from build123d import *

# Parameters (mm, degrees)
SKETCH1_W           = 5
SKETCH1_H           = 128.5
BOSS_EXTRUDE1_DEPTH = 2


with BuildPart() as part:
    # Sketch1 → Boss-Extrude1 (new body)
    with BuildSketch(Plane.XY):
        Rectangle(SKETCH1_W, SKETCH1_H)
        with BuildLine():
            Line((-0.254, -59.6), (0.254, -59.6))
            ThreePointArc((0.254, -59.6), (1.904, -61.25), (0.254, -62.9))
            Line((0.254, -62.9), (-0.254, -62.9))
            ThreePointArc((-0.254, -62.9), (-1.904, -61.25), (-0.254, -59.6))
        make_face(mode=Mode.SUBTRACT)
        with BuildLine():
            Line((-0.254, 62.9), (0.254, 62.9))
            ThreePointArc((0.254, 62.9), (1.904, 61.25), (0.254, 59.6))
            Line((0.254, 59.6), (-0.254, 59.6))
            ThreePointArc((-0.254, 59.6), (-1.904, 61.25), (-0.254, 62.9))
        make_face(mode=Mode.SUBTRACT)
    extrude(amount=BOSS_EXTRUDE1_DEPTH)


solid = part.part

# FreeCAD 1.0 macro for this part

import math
import FreeCAD as App
import Part
import Sketcher


def add_polygon(sketch, points):
    """Adds a closed chain of lines whose ends are joined by coincident constraints."""
    first, n = sketch.GeometryCount, len(points)
    for a, b in zip(points, points[1:] + points[:1]):
        sketch.addGeometry(Part.LineSegment(App.Vector(*a, 0), App.Vector(*b, 0)), False)
    for i in range(n):
        sketch.addConstraint(Sketcher.Constraint("Coincident", first + i, 2, first + (i + 1) % n, 1))

doc = App.newDocument("Part")
body = doc.addObject("PartDesign::Body", "Body")

sketch1 = doc.addObject("Sketcher::SketchObject", "Sketch")
body.addObject(sketch1)
sketch1.AttachmentSupport = (doc.XY_Plane, [""])
sketch1.MapMode = "FlatFace"
add_polygon(sketch1, [(-2.5, 64.2), (-2.5, -64.2), (2.5, -64.2), (2.5, 64.2)])
sketch1.addGeometry(Part.ArcOfCircle(Part.Circle(App.Vector(-0.3, -61.2, 0), App.Vector(0, 0, 1), 1.6), math.radians(90), math.radians(270)), False)
sketch1.addGeometry(Part.LineSegment(App.Vector(-0.3, -59.6, 0), App.Vector(0.3, -59.6, 0)), False)
sketch1.addGeometry(Part.ArcOfCircle(Part.Circle(App.Vector(0.3, -61.2, 0), App.Vector(0, 0, 1), 1.6), math.radians(-90), math.radians(90)), False)
sketch1.addGeometry(Part.LineSegment(App.Vector(0.3, -62.9, 0), App.Vector(-0.3, -62.9, 0)), False)
sketch1.addGeometry(Part.ArcOfCircle(Part.Circle(App.Vector(-0.3, 61.2, 0), App.Vector(0, 0, 1), 1.6), math.radians(90), math.radians(270)), False)
sketch1.addGeometry(Part.LineSegment(App.Vector(-0.3, 62.9, 0), App.Vector(0.3, 62.9, 0)), False)
sketch1.addGeometry(Part.ArcOfCircle(Part.Circle(App.Vector(0.3, 61.2, 0), App.Vector(0, 0, 1), 1.6), math.radians(-90), math.radians(90)), False)
sketch1.addGeometry(Part.LineSegment(App.Vector(0.3, 59.6, 0), App.Vector(-0.3, 59.6, 0)), False)
sketch1.addConstraint([
    Sketcher.Constraint("Tangent", 4, 1, 5, 1),
    Sketcher.Constraint("Tangent", 5, 2, 6, 2),
    Sketcher.Constraint("Tangent", 6, 1, 7, 1),
    Sketcher.Constraint("Tangent", 7, 2, 4, 2),
    Sketcher.Constraint("Tangent", 8, 1, 9, 1),
    Sketcher.Constraint("Tangent", 9, 2, 10, 2),
    Sketcher.Constraint("Tangent", 10, 1, 11, 1),
    Sketcher.Constraint("Tangent", 11, 2, 8, 2),
    Sketcher.Constraint("Vertical", 0),
    Sketcher.Constraint("Horizontal", 1),
    Sketcher.Constraint("Vertical", 2),
    Sketcher.Constraint("Horizontal", 3),
    Sketcher.Constraint("Horizontal", 5),
    Sketcher.Constraint("Horizontal", 7),
    Sketcher.Constraint("Horizontal", 9),
    Sketcher.Constraint("Horizontal", 11),
    Sketcher.Constraint("Equal", 6, 8),
    Sketcher.Constraint("Symmetric", 6, 3, 8, 3, -1, 1),
    Sketcher.Constraint("Symmetric", 0, 2, 2, 2, -1, 1),
    Sketcher.Constraint("Vertical", 4, 3, 8, 3),
    Sketcher.Constraint("Vertical", 6, 3, 10, 3),
    Sketcher.Constraint("DistanceX", 1, 1, 1, 2, 5.0),
    Sketcher.Constraint("Radius", 4, 1.65),
    Sketcher.Constraint("DistanceY", 0, 2, 0, 1, 128.5),
    Sketcher.Constraint("DistanceY", 0, 2, 4, 3, 3.0),
    Sketcher.Constraint("DistanceX", 5, 1, 5, 2, 0.508),
])
pad1 = doc.addObject("PartDesign::Pad", "Pad")
body.addObject(pad1)
pad1.Profile = sketch1
pad1.Length = 2

doc.recompute()
